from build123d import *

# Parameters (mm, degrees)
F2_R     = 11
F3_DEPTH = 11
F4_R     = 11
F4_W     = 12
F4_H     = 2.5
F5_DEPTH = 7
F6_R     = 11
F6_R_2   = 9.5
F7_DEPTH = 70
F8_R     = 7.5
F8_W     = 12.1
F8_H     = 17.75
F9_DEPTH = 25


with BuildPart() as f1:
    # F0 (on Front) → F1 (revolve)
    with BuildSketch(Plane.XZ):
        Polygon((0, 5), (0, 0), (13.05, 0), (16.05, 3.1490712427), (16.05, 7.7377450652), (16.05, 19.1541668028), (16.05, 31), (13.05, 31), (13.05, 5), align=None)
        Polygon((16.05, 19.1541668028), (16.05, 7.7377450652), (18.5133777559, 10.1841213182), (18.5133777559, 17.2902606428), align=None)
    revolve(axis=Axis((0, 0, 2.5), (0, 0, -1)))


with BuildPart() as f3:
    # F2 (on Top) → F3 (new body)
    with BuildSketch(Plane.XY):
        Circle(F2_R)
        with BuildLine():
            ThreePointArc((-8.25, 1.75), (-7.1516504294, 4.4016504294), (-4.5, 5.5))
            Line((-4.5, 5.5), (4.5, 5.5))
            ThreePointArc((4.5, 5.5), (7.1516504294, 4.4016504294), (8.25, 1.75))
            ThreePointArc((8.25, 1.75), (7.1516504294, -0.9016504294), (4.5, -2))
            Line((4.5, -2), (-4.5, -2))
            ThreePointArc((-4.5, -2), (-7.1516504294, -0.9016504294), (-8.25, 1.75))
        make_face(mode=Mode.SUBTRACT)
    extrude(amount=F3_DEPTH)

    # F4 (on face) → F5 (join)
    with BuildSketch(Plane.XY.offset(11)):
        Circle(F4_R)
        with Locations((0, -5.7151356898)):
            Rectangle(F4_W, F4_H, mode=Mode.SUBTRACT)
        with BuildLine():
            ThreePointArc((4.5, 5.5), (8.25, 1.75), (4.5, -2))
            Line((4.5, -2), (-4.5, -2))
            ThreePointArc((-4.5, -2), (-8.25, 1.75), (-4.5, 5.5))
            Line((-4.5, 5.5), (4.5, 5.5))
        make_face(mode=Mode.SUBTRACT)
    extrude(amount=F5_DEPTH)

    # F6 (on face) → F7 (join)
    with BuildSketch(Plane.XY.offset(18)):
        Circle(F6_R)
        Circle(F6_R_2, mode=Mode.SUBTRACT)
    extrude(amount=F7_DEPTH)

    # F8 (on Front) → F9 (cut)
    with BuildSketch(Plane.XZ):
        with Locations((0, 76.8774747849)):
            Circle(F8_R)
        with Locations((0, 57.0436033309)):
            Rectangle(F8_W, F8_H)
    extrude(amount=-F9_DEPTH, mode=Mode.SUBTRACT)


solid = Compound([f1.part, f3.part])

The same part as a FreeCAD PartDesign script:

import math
import FreeCAD as App
import Part
import Sketcher
Q = App.Units.Quantity


def add_polygon(sketch, points):
    """Adds a closed chain of lines whose ends are joined by coincident constraints."""
    first, n = sketch.GeometryCount, len(points)
    for a, b in zip(points, points[1:] + points[:1]):
        sketch.addGeometry(Part.LineSegment(App.Vector(*a, 0), App.Vector(*b, 0)), False)
    for i in range(n):
        sketch.addConstraint(Sketcher.Constraint("Coincident", first + i, 2, first + (i + 1) % n, 1))

doc = App.newDocument("Part")
params = doc.addObject("Spreadsheet::Sheet", "Params")
for row, (alias, value) in enumerate([
    ("sketch1_width", "3 mm"),
    ("sketch1_height", "5 mm"),
    ("sketch1_height2", "26 mm"),
    ("sketch1_width2", "13.05 mm"),
    ("revolution_angle", "360 deg"),
    ("sketch2_diameter", "22 mm"),
    ("sketch2_width", "9 mm"),
    ("sketch2_radius", "3.75 mm"),
    ("pad1_length", "11 mm"),
    ("sketch3_diameter", "22 mm"),
    ("sketch3_width", "12 mm"),
    ("sketch3_width2", "9 mm"),
    ("sketch3_radius", "3.75 mm"),
    ("sketch3_height", "2.5 mm"),
    ("pad2_length", "7 mm"),
    ("sketch4_diameter", "22 mm"),
    ("sketch4_diameter2", "19 mm"),
    ("pad3_length", "70 mm"),
    ("sketch5_diameter", "15 mm"),
    ("sketch5_width", "12.1 mm"),
    ("sketch5_height", "17.75 mm"),
    ("pocket1_length", "25 mm"),
], start=1):
    params.set(f"A{row}", alias)
    params.set(f"B{row}", "=" + value)
    params.setAlias(f"B{row}", alias)

body = doc.addObject("PartDesign::Body", "Body")

# Sketch on XZ plane
sketch1 = body.newObject("Sketcher::SketchObject", "Sketch")
sketch1.AttachmentSupport = (doc.getObject("XZ_Plane"), [""])
sketch1.MapMode = "FlatFace"
add_polygon(sketch1, [(0, 5), (0, 0), (13.05, 0), (16.05, 3.149071), (16.05, 7.737745), (18.513378, 10.184121), (18.513378, 17.290261), (16.05, 19.154167), (16.05, 31), (13.05, 31), (13.05, 5)])  # lines 0-10
sketch1.addConstraint([
    Sketcher.Constraint("Vertical", 0),
    Sketcher.Constraint("Horizontal", 1),
    Sketcher.Constraint("Vertical", 3),
    Sketcher.Constraint("Vertical", 5),
    Sketcher.Constraint("Vertical", 7),
    Sketcher.Constraint("Horizontal", 8),
    Sketcher.Constraint("Vertical", 9),
    Sketcher.Constraint("Horizontal", 10),
    Sketcher.Constraint("Coincident", 0, 2, -1, 1),
    Sketcher.Constraint("Vertical", 3, 2, 6, 2),
    Sketcher.Constraint("Vertical", 1, 2, 8, 2),
    Sketcher.Constraint("DistanceX", 8, 2, 8, 1, Q("3 mm")),
    Sketcher.Constraint("DistanceY", 0, 2, 0, 1, Q("5 mm")),
    Sketcher.Constraint("DistanceY", 9, 2, 9, 1, Q("26 mm")),
    Sketcher.Constraint("DistanceX", 1, 1, 1, 2, Q("13.05 mm")),
    Sketcher.Constraint("DistanceY", 5, 1, 5, 2, Q("7.106139 mm")),
    Sketcher.Constraint("Distance", 4, Q("3.471741 mm")),
    Sketcher.Constraint("DistanceY", 3, 1, 3, 2, Q("4.588674 mm")),
    Sketcher.Constraint("DistanceY", 7, 1, 7, 2, Q("11.845833 mm")),
    Sketcher.Constraint("DistanceY", -1, 1, 2, 2, Q("3.149071 mm")),
    Sketcher.Constraint("DistanceY", -1, 1, 4, 2, Q("10.184121 mm")),
])
sketch1.setExpression("Constraints[22]", "Params.sketch1_width")
sketch1.setExpression("Constraints[23]", "Params.sketch1_height")
sketch1.setExpression("Constraints[24]", "Params.sketch1_height2")
sketch1.setExpression("Constraints[25]", "Params.sketch1_width2")
revolution = body.newObject("PartDesign::Revolution", "Revolution")
revolution.Profile = sketch1
revolution.ReferenceAxis = (sketch1, ["V_Axis"])
revolution.setExpression("Angle", "Params.revolution_angle")
body2 = doc.addObject("PartDesign::Body", "Body001")

# Sketch on XY plane
sketch2 = body2.newObject("Sketcher::SketchObject", "Sketch001")
sketch2.AttachmentSupport = (doc.getObject("XY_Plane001"), [""])
sketch2.MapMode = "FlatFace"
sketch2.addGeometry([
    Part.Circle(App.Vector(0, 0, 0), App.Vector(0, 0, 1), 11),  # 0
    Part.ArcOfCircle(Part.Circle(App.Vector(-4.5, 1.75, 0), App.Vector(0, 0, 1), 3.75), math.radians(180), math.radians(270)),  # 1
    Part.ArcOfCircle(Part.Circle(App.Vector(-4.5, 1.75, 0), App.Vector(0, 0, 1), 3.75), math.radians(90), math.radians(180)),  # 2
    Part.LineSegment(App.Vector(-4.5, 5.5, 0), App.Vector(4.5, 5.5, 0)),  # 3
    Part.ArcOfCircle(Part.Circle(App.Vector(4.5, 1.75, 0), App.Vector(0, 0, 1), 3.75), math.radians(0), math.radians(90)),  # 4
    Part.ArcOfCircle(Part.Circle(App.Vector(4.5, 1.75, 0), App.Vector(0, 0, 1), 3.75), math.radians(-90), math.radians(0)),  # 5
    Part.LineSegment(App.Vector(4.5, -2, 0), App.Vector(-4.5, -2, 0)),  # 6
], False)
sketch2.addConstraint([
    Sketcher.Constraint("Tangent", 1, 1, 2, 2),
    Sketcher.Constraint("Tangent", 2, 1, 3, 1),
    Sketcher.Constraint("Tangent", 3, 2, 4, 2),
    Sketcher.Constraint("Tangent", 4, 1, 5, 2),
    Sketcher.Constraint("Tangent", 5, 1, 6, 1),
    Sketcher.Constraint("Tangent", 6, 2, 1, 2),
    Sketcher.Constraint("Horizontal", 3),
    Sketcher.Constraint("Horizontal", 6),
    Sketcher.Constraint("Coincident", 0, 3, -1, 1),
    Sketcher.Constraint("Equal", 1, 2),
    Sketcher.Constraint("Equal", 2, 4),
    Sketcher.Constraint("Symmetric", 1, 1, 4, 1, -2),
    Sketcher.Constraint("Horizontal", 5, 3, 1, 1),
    Sketcher.Constraint("Diameter", 0, Q("22 mm")),
    Sketcher.Constraint("DistanceX", 3, 1, 3, 2, Q("9 mm")),
    Sketcher.Constraint("Radius", 1, Q("3.75 mm")),
    Sketcher.Constraint("DistanceY", 5, 1, -1, 1, Q("2 mm")),
])
sketch2.setExpression("Constraints[13]", "Params.sketch2_diameter")
sketch2.setExpression("Constraints[14]", "Params.sketch2_width")
sketch2.setExpression("Constraints[15]", "Params.sketch2_radius")
pad1 = body2.newObject("PartDesign::Pad", "Pad")
pad1.Profile = sketch2
pad1.setExpression("Length", "Params.pad1_length")

# Sketch on XY plane
sketch3 = body2.newObject("Sketcher::SketchObject", "Sketch002")
sketch3.AttachmentSupport = (doc.getObject("XY_Plane001"), [""])
sketch3.MapMode = "FlatFace"
sketch3.AttachmentOffset = App.Placement(App.Vector(0, 0, 11), App.Rotation())
sketch3.addGeometry(Part.Circle(App.Vector(0, 0, 0), App.Vector(0, 0, 1), 11), False)  # 0
add_polygon(sketch3, [(6, -6.965136), (-6, -6.965136), (-6, -4.465136), (6, -4.465136)])  # lines 1-4
sketch3.addGeometry(Part.LineSegment(App.Vector(-4.5, 5.5, 0), App.Vector(4.5, 5.5, 0)), False)  # 5
sketch3.addGeometry(Part.ArcOfCircle(Part.Circle(App.Vector(4.5, 1.75, 0), App.Vector(0, 0, 1), 3.75), math.radians(-90), math.radians(90)), False)  # 6
sketch3.addGeometry(Part.LineSegment(App.Vector(4.5, -2, 0), App.Vector(-4.5, -2, 0)), False)  # 7
sketch3.addGeometry(Part.ArcOfCircle(Part.Circle(App.Vector(-4.5, 1.75, 0), App.Vector(0, 0, 1), 3.75), math.radians(90), math.radians(270)), False)  # 8
sketch3.addConstraint([
    Sketcher.Constraint("Tangent", 5, 2, 6, 2),
    Sketcher.Constraint("Tangent", 6, 1, 7, 1),
    Sketcher.Constraint("Tangent", 7, 2, 8, 2),
    Sketcher.Constraint("Tangent", 8, 1, 5, 1),
    Sketcher.Constraint("Horizontal", 1),
    Sketcher.Constraint("Vertical", 2),
    Sketcher.Constraint("Horizontal", 3),
    Sketcher.Constraint("Vertical", 4),
    Sketcher.Constraint("Horizontal", 5),
    Sketcher.Constraint("Horizontal", 7),
    Sketcher.Constraint("Coincident", 0, 3, -1, 1),
    Sketcher.Constraint("Diameter", 0, Q("22 mm")),
    Sketcher.Constraint("DistanceX", 1, 2, 1, 1, Q("12 mm")),
    Sketcher.Constraint("DistanceX", 5, 1, 5, 2, Q("9 mm")),
    Sketcher.Constraint("Radius", 6, Q("3.75 mm")),
    Sketcher.Constraint("DistanceY", 2, 1, 2, 2, Q("2.5 mm")),
    Sketcher.Constraint("DistanceX", 1, 2, -1, 1, Q("6 mm")),
    Sketcher.Constraint("DistanceY", 6, 1, -1, 1, Q("2 mm")),
    Sketcher.Constraint("DistanceX", -1, 1, 6, 3, Q("4.5 mm")),
    Sketcher.Constraint("DistanceY", 1, 2, -1, 1, Q("6.965136 mm")),
])
sketch3.setExpression("Constraints[15]", "Params.sketch3_diameter")
sketch3.setExpression("Constraints[16]", "Params.sketch3_width")
sketch3.setExpression("Constraints[17]", "Params.sketch3_width2")
sketch3.setExpression("Constraints[18]", "Params.sketch3_radius")
sketch3.setExpression("Constraints[19]", "Params.sketch3_height")
pad2 = body2.newObject("PartDesign::Pad", "Pad001")
pad2.Profile = sketch3
pad2.setExpression("Length", "Params.pad2_length")

# Sketch on XY plane
sketch4 = body2.newObject("Sketcher::SketchObject", "Sketch003")
sketch4.AttachmentSupport = (doc.getObject("XY_Plane001"), [""])
sketch4.MapMode = "FlatFace"
sketch4.AttachmentOffset = App.Placement(App.Vector(0, 0, 18), App.Rotation())
sketch4.addGeometry([
    Part.Circle(App.Vector(0, 0, 0), App.Vector(0, 0, 1), 11),
    Part.Circle(App.Vector(0, 0, 0), App.Vector(0, 0, 1), 9.5),
], False)
sketch4.addConstraint([
    Sketcher.Constraint("Coincident", 0, 3, -1, 1),
    Sketcher.Constraint("Coincident", 1, 3, -1, 1),
    Sketcher.Constraint("Diameter", 0, Q("22 mm")),
    Sketcher.Constraint("Diameter", 1, Q("19 mm")),
])
sketch4.setExpression("Constraints[2]", "Params.sketch4_diameter")
sketch4.setExpression("Constraints[3]", "Params.sketch4_diameter2")
pad3 = body2.newObject("PartDesign::Pad", "Pad002")
pad3.Profile = sketch4
pad3.setExpression("Length", "Params.pad3_length")

# Sketch on XZ plane
sketch5 = body2.newObject("Sketcher::SketchObject", "Sketch004")
sketch5.AttachmentSupport = (doc.getObject("XZ_Plane001"), [""])
sketch5.MapMode = "FlatFace"
sketch5.addGeometry(Part.Circle(App.Vector(0, 76.877475, 0), App.Vector(0, 0, 1), 7.5), False)  # 0
add_polygon(sketch5, [(-6.05, 65.918603), (-6.05, 48.168603), (6.05, 48.168603), (6.05, 65.918603)])  # lines 1-4
sketch5.addConstraint([
    Sketcher.Constraint("Vertical", 1),
    Sketcher.Constraint("Horizontal", 2),
    Sketcher.Constraint("Vertical", 3),
    Sketcher.Constraint("Horizontal", 4),
    Sketcher.Constraint("PointOnObject", 0, 3, -2),
    Sketcher.Constraint("Diameter", 0, Q("15 mm")),
    Sketcher.Constraint("DistanceX", 2, 1, 2, 2, Q("12.1 mm")),
    Sketcher.Constraint("DistanceY", 1, 2, 1, 1, Q("17.75 mm")),
    Sketcher.Constraint("DistanceX", 1, 2, -1, 1, Q("6.05 mm")),
    Sketcher.Constraint("DistanceY", 1, 2, 0, 3, Q("28.708871 mm")),
    Sketcher.Constraint("DistanceY", -1, 1, 0, 3, Q("76.877475 mm")),
])
sketch5.setExpression("Constraints[9]", "Params.sketch5_diameter")
sketch5.setExpression("Constraints[10]", "Params.sketch5_width")
sketch5.setExpression("Constraints[11]", "Params.sketch5_height")
pocket1 = body2.newObject("PartDesign::Pocket", "Pocket")
pocket1.Profile = sketch5
pocket1.setExpression("Length", "Params.pocket1_length")

doc.recompute()
